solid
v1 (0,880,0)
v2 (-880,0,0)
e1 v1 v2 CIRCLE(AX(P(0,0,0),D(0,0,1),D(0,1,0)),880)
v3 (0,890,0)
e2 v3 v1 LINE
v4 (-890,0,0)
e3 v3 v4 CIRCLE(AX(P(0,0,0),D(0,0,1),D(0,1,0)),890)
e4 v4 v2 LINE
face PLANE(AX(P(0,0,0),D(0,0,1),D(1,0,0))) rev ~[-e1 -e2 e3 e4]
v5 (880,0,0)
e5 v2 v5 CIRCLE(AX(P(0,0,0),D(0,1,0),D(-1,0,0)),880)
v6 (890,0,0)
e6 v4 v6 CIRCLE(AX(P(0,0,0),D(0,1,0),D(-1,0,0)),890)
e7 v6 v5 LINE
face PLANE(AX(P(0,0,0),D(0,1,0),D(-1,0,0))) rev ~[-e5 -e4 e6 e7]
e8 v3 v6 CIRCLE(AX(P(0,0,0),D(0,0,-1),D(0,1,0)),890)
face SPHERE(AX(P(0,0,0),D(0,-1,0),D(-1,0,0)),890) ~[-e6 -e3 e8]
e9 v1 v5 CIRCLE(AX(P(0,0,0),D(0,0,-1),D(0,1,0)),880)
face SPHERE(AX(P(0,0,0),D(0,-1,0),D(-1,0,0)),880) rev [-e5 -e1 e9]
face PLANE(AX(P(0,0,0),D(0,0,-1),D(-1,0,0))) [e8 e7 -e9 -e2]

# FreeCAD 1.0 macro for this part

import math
import FreeCAD as App
import Part
import Sketcher

V = App.Vector
Q = App.Units.Quantity

doc = App.newDocument("Part")
body = doc.addObject("PartDesign::Body", "Body")

# Sketch on XY plane
sketch1 = body.newObject("Sketcher::SketchObject", "Sketch")
sketch1.AttachmentSupport = (doc.getObject("XY_Plane"), [""])
sketch1.MapMode = "FlatFace"
sketch1.addGeometry([
    Part.LineSegment(V(0, 880, 0), V(0, 890, 0)),
    Part.ArcOfCircle(Part.Circle(V(0, 0, 0), V(0, 0, 1), 890), math.radians(90), math.radians(180)),
    Part.LineSegment(V(-890, 0, 0), V(-880, 0, 0)),
    Part.ArcOfCircle(Part.Circle(V(0, 0, 0), V(0, 0, 1), 880), math.radians(90), math.radians(180)),
], False)
sketch1.addConstraint([
    Sketcher.Constraint("Coincident", 0, 2, 1, 1),
    Sketcher.Constraint("Coincident", 1, 2, 2, 1),
    Sketcher.Constraint("Coincident", 2, 2, 3, 2),
    Sketcher.Constraint("Coincident", 3, 1, 0, 1),
    Sketcher.Constraint("Vertical", 0),
    Sketcher.Constraint("Horizontal", 2),
    Sketcher.Constraint("Coincident", 1, 3, -1, 1),
    Sketcher.Constraint("Coincident", 3, 3, -1, 1),
    Sketcher.Constraint("PointOnObject", 0, 2, -2),
    Sketcher.Constraint("PointOnObject", 2, 2, -1),
    Sketcher.Constraint("Radius", 1, Q("890 mm")),
    Sketcher.Constraint("DistanceX", 2, 1, 2, 2, Q("10 mm")),
])
revolution = body.newObject("PartDesign::Revolution", "Revolution")
revolution.Profile = sketch1
revolution.ReferenceAxis = (sketch1, ["V_Axis"])
revolution.Angle = 180

doc.recompute()
